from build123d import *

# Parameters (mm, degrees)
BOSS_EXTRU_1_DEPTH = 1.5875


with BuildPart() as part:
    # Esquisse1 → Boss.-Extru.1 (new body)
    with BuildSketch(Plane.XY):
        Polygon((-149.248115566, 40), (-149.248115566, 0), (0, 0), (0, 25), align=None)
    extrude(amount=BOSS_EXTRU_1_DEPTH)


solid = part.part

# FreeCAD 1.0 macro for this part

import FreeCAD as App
import Part
import Sketcher
from FreeCAD import Vector


def add_polygon(sketch, points):
    """Adds a closed chain of lines whose ends are joined by coincident constraints."""
    first, n = sketch.GeometryCount, len(points)
    for a, b in zip(points, points[1:] + points[:1]):
        sketch.addGeometry(Part.LineSegment(App.Vector(*a, 0), App.Vector(*b, 0)), False)
    for i in range(n):
        sketch.addConstraint(Sketcher.Constraint("Coincident", first + i, 2, first + (i + 1) % n, 1))

doc = App.newDocument("Part")
body = doc.addObject("PartDesign::Body", "Body")

# Sketch on XY plane
sketch1 = body.newObject("Sketcher::SketchObject", "Sketch")
sketch1.AttachmentSupport = (doc.getObject("XY_Plane"), [""])
sketch1.MapMode = "FlatFace"
add_polygon(sketch1, [(-149, 40), (-149, 0), (0, 0), (0, 25)])  # lines 0-3
sketch1.addConstraint(Sketcher.Constraint("Vertical", 0))
sketch1.addConstraint(Sketcher.Constraint("Horizontal", 1))
sketch1.addConstraint(Sketcher.Constraint("Vertical", 2))
sketch1.addConstraint(Sketcher.Constraint("Coincident", 1, 2, -1, 1))
sketch1.addConstraint(Sketcher.Constraint("DistanceY", 0, 2, 0, 1, 40.0))
sketch1.addConstraint(Sketcher.Constraint("DistanceY", 2, 1, 2, 2, 25.0))
sketch1.addConstraint(Sketcher.Constraint("Distance", 3, 150.0))
pad1 = body.newObject("PartDesign::Pad", "Pad")
pad1.Profile = sketch1
pad1.Length = 1.5875

doc.recompute()
